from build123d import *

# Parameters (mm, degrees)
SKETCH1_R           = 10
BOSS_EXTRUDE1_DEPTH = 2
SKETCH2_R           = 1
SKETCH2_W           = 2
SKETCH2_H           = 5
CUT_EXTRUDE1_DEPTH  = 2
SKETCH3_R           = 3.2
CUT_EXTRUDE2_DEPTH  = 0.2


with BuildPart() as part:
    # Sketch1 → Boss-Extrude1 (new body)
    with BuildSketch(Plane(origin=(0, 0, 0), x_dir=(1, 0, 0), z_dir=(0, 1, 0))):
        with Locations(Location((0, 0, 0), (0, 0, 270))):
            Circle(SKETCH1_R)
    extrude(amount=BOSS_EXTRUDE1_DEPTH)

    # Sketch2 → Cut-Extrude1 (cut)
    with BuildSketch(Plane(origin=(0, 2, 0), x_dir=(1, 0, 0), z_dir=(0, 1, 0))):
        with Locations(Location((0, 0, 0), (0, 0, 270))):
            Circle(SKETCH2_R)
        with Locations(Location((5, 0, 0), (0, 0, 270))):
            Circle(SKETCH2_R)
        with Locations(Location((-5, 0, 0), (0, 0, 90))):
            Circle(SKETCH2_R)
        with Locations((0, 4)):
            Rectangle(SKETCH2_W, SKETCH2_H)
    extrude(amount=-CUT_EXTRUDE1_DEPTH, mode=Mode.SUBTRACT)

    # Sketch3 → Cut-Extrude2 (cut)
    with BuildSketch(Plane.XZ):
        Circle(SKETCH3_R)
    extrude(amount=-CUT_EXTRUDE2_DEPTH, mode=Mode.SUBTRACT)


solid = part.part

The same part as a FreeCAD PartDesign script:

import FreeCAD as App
import Part
import Sketcher
from FreeCAD import Vector

doc = App.newDocument("Part")
body = doc.addObject("PartDesign::Body", "Body")

# Sketch on XZ plane
sketch1 = body.newObject("Sketcher::SketchObject", "Sketch")
sketch1.AttachmentSupport = (doc.getObject("XZ_Plane"), [""])
sketch1.MapMode = "FlatFace"
sketch1.addGeometry(Part.Circle(Vector(0, 0, 0), Vector(0, 0, 1), 10), False)
sketch1.addConstraint([
    Sketcher.Constraint("Coincident", 0, 3, -1, 1),
    Sketcher.Constraint("Diameter", 0, 20.0),
])
pad1 = body.newObject("PartDesign::Pad", "Pad")
pad1.Profile = sketch1
pad1.Length = 2
pad1.Reversed = True

# Sketch on XZ plane
sketch2 = body.newObject("Sketcher::SketchObject", "Sketch001")
sketch2.AttachmentSupport = (doc.getObject("XZ_Plane"), [""])
sketch2.MapMode = "FlatFace"
sketch2.AttachmentOffset = App.Placement(Vector(0, 0, -2), App.Rotation())
sketch2.addGeometry([
    Part.Circle(Vector(0, 0, 0), Vector(0, 0, 1), 1),  # 0
    Part.Circle(Vector(5, 0, 0), Vector(0, 0, 1), 1),  # 1
    Part.Circle(Vector(-5, 0, 0), Vector(0, 0, 1), 1),  # 2
    Part.LineSegment(Vector(-1, -6.5, 0), Vector(-1, -1.5, 0)),  # 3
    Part.LineSegment(Vector(-1, -1.5, 0), Vector(1, -1.5, 0)),  # 4
    Part.LineSegment(Vector(1, -1.5, 0), Vector(1, -6.5, 0)),  # 5
    Part.LineSegment(Vector(1, -6.5, 0), Vector(-1, -6.5, 0)),  # 6
], False)
sketch2.addConstraint([
    Sketcher.Constraint("Coincident", 3, 2, 4, 1),
    Sketcher.Constraint("Coincident", 4, 2, 5, 1),
    Sketcher.Constraint("Coincident", 5, 2, 6, 1),
    Sketcher.Constraint("Coincident", 6, 2, 3, 1),
    Sketcher.Constraint("Vertical", 3),
    Sketcher.Constraint("Horizontal", 4),
    Sketcher.Constraint("Vertical", 5),
    Sketcher.Constraint("Horizontal", 6),
    Sketcher.Constraint("Coincident", 0, 3, -1, 1),
    Sketcher.Constraint("Equal", 0, 1),
    Sketcher.Constraint("Equal", 1, 2),
    Sketcher.Constraint("Symmetric", 1, 3, 2, 3, -1, 1),
    Sketcher.Constraint("PointOnObject", 1, 3, -1),
    Sketcher.Constraint("Diameter", 0, 2.0),
    Sketcher.Constraint("DistanceX", 4, 1, 4, 2, 2.0),
    Sketcher.Constraint("DistanceY", 3, 1, 3, 2, 5.0),
    Sketcher.Constraint("DistanceX", -1, 1, 1, 3, 5.0),
    Sketcher.Constraint("DistanceX", 3, 2, -1, 1, 1.0),
    Sketcher.Constraint("DistanceY", 3, 2, -1, 1, 1.5),
])
pocket1 = body.newObject("PartDesign::Pocket", "Pocket")
pocket1.Profile = sketch2
pocket1.Length = 2
pocket1.Reversed = True

# Sketch on XZ plane
sketch3 = body.newObject("Sketcher::SketchObject", "Sketch002")
sketch3.AttachmentSupport = (doc.getObject("XZ_Plane"), [""])
sketch3.MapMode = "FlatFace"
sketch3.addGeometry(Part.Circle(Vector(0, 0, 0), Vector(0, 0, 1), 3.2), False)
sketch3.addConstraint([
    Sketcher.Constraint("Coincident", 0, 3, -1, 1),
    Sketcher.Constraint("Diameter", 0, 6.4),
])
pocket2 = body.newObject("PartDesign::Pocket", "Pocket001")
pocket2.Profile = sketch3
pocket2.Length = 0.2

doc.recompute()
